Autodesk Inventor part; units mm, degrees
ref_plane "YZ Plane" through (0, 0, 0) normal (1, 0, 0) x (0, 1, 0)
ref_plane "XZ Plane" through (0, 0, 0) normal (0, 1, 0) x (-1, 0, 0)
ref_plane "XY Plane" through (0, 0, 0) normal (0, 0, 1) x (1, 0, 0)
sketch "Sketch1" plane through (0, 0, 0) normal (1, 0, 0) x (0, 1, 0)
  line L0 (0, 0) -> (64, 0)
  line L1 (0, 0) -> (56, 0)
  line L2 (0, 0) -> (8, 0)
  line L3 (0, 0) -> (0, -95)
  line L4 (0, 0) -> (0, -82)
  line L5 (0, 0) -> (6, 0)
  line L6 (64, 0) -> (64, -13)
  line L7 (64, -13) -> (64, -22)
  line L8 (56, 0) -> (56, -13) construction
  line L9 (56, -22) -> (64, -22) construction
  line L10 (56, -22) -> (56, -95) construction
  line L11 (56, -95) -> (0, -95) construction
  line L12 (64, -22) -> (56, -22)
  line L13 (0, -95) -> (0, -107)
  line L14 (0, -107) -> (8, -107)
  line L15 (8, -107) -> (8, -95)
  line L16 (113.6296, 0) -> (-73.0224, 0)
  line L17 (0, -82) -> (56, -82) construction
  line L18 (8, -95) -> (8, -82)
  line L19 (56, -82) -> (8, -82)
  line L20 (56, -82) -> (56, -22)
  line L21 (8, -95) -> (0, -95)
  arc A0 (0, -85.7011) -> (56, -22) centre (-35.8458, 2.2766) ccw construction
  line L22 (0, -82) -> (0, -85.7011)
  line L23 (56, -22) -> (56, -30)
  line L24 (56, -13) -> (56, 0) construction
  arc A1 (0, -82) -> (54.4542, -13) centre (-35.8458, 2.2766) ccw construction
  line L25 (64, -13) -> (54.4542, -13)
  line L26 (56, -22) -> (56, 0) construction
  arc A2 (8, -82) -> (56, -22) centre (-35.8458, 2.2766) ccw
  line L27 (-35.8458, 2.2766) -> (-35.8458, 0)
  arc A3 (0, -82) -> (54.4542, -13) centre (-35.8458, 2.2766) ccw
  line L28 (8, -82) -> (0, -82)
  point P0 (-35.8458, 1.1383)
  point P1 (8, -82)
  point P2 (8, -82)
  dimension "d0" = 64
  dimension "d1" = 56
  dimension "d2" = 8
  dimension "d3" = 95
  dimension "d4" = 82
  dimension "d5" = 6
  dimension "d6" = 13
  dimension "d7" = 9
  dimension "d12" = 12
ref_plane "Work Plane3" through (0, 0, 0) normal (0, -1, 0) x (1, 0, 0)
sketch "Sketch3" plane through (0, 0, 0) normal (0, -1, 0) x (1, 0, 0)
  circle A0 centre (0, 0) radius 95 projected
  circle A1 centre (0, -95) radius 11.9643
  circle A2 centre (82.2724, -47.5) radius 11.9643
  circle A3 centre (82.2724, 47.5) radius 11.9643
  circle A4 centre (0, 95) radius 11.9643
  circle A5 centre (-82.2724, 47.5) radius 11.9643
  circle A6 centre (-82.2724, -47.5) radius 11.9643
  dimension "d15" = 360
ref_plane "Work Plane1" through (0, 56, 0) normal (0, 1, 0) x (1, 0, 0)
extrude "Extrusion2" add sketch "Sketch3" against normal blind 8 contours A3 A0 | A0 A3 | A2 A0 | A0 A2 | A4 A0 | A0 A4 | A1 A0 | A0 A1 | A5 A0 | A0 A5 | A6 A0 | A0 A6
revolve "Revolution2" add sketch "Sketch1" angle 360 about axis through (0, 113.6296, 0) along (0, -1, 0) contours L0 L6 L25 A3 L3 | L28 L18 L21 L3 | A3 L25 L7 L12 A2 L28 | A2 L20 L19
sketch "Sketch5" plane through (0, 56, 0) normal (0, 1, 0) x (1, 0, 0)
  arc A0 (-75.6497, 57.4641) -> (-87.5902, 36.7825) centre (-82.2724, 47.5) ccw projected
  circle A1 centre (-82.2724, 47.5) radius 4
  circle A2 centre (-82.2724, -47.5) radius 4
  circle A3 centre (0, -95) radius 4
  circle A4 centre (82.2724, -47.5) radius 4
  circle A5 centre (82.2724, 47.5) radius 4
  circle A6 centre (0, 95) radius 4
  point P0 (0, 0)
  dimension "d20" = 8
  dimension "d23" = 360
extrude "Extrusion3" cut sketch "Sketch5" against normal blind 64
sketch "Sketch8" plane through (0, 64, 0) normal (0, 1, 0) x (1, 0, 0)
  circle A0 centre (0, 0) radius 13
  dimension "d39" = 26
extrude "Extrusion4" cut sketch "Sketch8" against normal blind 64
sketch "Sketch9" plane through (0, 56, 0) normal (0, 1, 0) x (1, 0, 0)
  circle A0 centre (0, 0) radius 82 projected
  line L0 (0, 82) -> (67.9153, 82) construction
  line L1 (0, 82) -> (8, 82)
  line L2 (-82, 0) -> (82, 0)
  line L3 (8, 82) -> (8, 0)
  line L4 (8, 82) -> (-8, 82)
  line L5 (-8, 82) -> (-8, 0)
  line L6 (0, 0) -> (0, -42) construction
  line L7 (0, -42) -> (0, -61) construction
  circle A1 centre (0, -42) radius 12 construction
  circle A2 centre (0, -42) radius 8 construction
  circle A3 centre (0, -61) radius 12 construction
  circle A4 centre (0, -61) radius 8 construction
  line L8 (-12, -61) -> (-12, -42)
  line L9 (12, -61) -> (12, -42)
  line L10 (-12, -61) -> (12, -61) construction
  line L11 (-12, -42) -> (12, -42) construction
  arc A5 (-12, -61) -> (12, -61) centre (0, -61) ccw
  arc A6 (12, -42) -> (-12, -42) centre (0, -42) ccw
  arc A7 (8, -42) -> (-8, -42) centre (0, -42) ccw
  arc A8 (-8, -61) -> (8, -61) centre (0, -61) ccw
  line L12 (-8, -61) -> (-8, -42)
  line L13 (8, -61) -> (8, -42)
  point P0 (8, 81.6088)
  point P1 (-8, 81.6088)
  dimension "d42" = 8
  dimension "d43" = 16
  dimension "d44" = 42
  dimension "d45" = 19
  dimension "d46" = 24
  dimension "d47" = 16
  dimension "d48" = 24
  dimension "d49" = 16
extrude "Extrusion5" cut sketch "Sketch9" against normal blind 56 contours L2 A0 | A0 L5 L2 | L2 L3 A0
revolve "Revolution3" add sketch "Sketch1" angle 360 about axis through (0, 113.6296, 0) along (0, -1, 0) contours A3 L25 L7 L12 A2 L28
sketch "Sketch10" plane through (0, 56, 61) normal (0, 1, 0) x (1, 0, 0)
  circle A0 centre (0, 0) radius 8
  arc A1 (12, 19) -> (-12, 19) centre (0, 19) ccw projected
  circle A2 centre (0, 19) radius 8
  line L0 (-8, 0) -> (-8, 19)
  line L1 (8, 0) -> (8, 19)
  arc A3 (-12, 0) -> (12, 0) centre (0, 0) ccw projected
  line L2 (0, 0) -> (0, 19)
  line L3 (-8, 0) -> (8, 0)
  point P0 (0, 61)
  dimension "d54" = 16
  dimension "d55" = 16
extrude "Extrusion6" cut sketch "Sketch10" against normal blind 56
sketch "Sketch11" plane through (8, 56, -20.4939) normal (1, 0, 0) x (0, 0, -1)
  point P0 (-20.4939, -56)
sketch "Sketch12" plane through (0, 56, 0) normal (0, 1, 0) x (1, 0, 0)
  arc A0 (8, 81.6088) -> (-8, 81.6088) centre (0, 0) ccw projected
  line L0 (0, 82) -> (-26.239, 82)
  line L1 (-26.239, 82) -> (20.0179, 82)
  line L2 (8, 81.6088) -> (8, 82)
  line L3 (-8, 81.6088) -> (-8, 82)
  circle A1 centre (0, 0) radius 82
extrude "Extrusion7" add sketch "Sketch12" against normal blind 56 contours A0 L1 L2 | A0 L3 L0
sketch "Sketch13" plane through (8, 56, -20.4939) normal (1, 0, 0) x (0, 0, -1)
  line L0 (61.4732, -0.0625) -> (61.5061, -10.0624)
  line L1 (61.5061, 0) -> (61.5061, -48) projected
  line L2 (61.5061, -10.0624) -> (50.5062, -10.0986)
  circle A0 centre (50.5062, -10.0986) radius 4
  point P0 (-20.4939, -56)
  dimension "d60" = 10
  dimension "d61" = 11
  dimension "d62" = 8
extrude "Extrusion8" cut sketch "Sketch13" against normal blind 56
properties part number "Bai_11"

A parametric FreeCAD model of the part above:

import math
import FreeCAD as App
import Part
import Sketcher

doc = App.newDocument("Part")
body = doc.addObject("PartDesign::Body", "Body")
body.AllowCompound = True

# Sketch on XZ plane
sketch1 = body.newObject("Sketcher::SketchObject", "Sketch")
sketch1.AttachmentSupport = (doc.getObject("XZ_Plane"), [""])
sketch1.MapMode = "FlatFace"
sketch1.addGeometry([
    Part.Circle(App.Vector(82.2724, 47.5, 0), App.Vector(0, 0, 1), 11.9643),  # 0
    Part.Circle(App.Vector(82.2724, -47.5, 0), App.Vector(0, 0, 1), 11.9643),  # 1
    Part.Circle(App.Vector(0, 95, 0), App.Vector(0, 0, 1), 11.9643),  # 2
    Part.Circle(App.Vector(0, -95, 0), App.Vector(0, 0, 1), 11.9643),  # 3
    Part.Circle(App.Vector(-82.2724, 47.5, 0), App.Vector(0, 0, 1), 11.9643),  # 4
    Part.Circle(App.Vector(-82.2724, -47.5, 0), App.Vector(0, 0, 1), 11.9643),  # 5
], False)
sketch1.addConstraint([
    Sketcher.Constraint("Equal", 0, 1),
    Sketcher.Constraint("Equal", 1, 2),
    Sketcher.Constraint("Equal", 2, 3),
    Sketcher.Constraint("Equal", 3, 4),
    Sketcher.Constraint("Equal", 4, 5),
    Sketcher.Constraint("Symmetric", 2, 3, 3, 3, -1, 1),
    Sketcher.Constraint("Symmetric", 1, 3, 4, 3, -1, 1),
    Sketcher.Constraint("Symmetric", 0, 3, 5, 3, -1, 1),
    Sketcher.Constraint("Symmetric", 0, 3, 4, 3, -2),
    Sketcher.Constraint("PointOnObject", 2, 3, -2),
    Sketcher.Constraint("DistanceY", -1, 1, 2, 3, 95.0),
    Sketcher.Constraint("DistanceY", 1, 3, 0, 3, 95.0),
    Sketcher.Constraint("Diameter", 0, 23.9286),
    Sketcher.Constraint("DistanceX", -1, 1, 0, 3, 82.2724),
])
pad1 = body.newObject("PartDesign::Pad", "Pad")
pad1.Profile = sketch1
pad1.Length = 8
pad1.Reversed = True

# Sketch on YZ plane
sketch2 = body.newObject("Sketcher::SketchObject", "Sketch001")
sketch2.AttachmentSupport = (doc.getObject("YZ_Plane"), [""])
sketch2.MapMode = "FlatFace"
sketch2.addGeometry([
    Part.LineSegment(App.Vector(0, 0, 0), App.Vector(0, -95, 0)),  # 0
    Part.LineSegment(App.Vector(0, -95, 0), App.Vector(8, -95, 0)),  # 1
    Part.LineSegment(App.Vector(8, -95, 0), App.Vector(8, -82, 0)),  # 2
    Part.LineSegment(App.Vector(8, -82, 0), App.Vector(56, -82, 0)),  # 3
    Part.LineSegment(App.Vector(56, -82, 0), App.Vector(56, -22, 0)),  # 4
    Part.LineSegment(App.Vector(56, -22, 0), App.Vector(64, -22, 0)),  # 5
    Part.LineSegment(App.Vector(64, -22, 0), App.Vector(64, 0, 0)),  # 6
    Part.LineSegment(App.Vector(64, 0, 0), App.Vector(0, 0, 0)),  # 7
], False)
sketch2.addConstraint([
    Sketcher.Constraint("Coincident", 0, 2, 1, 1),
    Sketcher.Constraint("Coincident", 1, 2, 2, 1),
    Sketcher.Constraint("Coincident", 2, 2, 3, 1),
    Sketcher.Constraint("Coincident", 3, 2, 4, 1),
    Sketcher.Constraint("Coincident", 4, 2, 5, 1),
    Sketcher.Constraint("Coincident", 5, 2, 6, 1),
    Sketcher.Constraint("Coincident", 6, 2, 7, 1),
    Sketcher.Constraint("Coincident", 7, 2, 0, 1),
    Sketcher.Constraint("Vertical", 0),
    Sketcher.Constraint("Horizontal", 1),
    Sketcher.Constraint("Vertical", 2),
    Sketcher.Constraint("Horizontal", 3),
    Sketcher.Constraint("Vertical", 4),
    Sketcher.Constraint("Horizontal", 5),
    Sketcher.Constraint("Vertical", 6),
    Sketcher.Constraint("Horizontal", 7),
    Sketcher.Constraint("Coincident", 7, 2, -1, 1),
    Sketcher.Constraint("Equal", 1, 5),
    Sketcher.Constraint("DistanceX", 1, 1, 1, 2, 8.0),
    Sketcher.Constraint("DistanceX", 7, 2, 7, 1, 64.0),
    Sketcher.Constraint("DistanceY", 0, 2, 0, 1, 95.0),
    Sketcher.Constraint("DistanceY", 2, 1, 2, 2, 13.0),
    Sketcher.Constraint("DistanceY", 4, 1, 4, 2, 60.0),
])
revolution = body.newObject("PartDesign::Revolution", "Revolution")
revolution.Profile = sketch2
revolution.ReferenceAxis = (sketch2, ["H_Axis"])
revolution.Angle = 360

# Sketch on XZ plane
sketch3 = body.newObject("Sketcher::SketchObject", "Sketch002")
sketch3.AttachmentSupport = (doc.getObject("XZ_Plane"), [""])
sketch3.MapMode = "FlatFace"
sketch3.AttachmentOffset = App.Placement(App.Vector(0, 0, -56), App.Rotation())
sketch3.addGeometry([
    Part.Circle(App.Vector(-82.2724, -47.5, 0), App.Vector(0, 0, 1), 4),  # 0
    Part.Circle(App.Vector(-82.2724, 47.5, 0), App.Vector(0, 0, 1), 4),  # 1
    Part.Circle(App.Vector(0, 95, 0), App.Vector(0, 0, 1), 4),  # 2
    Part.Circle(App.Vector(82.2724, 47.5, 0), App.Vector(0, 0, 1), 4),  # 3
    Part.Circle(App.Vector(82.2724, -47.5, 0), App.Vector(0, 0, 1), 4),  # 4
    Part.Circle(App.Vector(0, -95, 0), App.Vector(0, 0, 1), 4),  # 5
], False)
sketch3.addConstraint([
    Sketcher.Constraint("Equal", 0, 1),
    Sketcher.Constraint("Equal", 1, 2),
    Sketcher.Constraint("Equal", 2, 3),
    Sketcher.Constraint("Equal", 3, 4),
    Sketcher.Constraint("Equal", 4, 5),
    Sketcher.Constraint("Symmetric", 0, 3, 3, 3, -1, 1),
    Sketcher.Constraint("Symmetric", 1, 3, 4, 3, -1, 1),
    Sketcher.Constraint("Symmetric", 2, 3, 5, 3, -1, 1),
    Sketcher.Constraint("Symmetric", 1, 3, 3, 3, -2),
    Sketcher.Constraint("PointOnObject", 2, 3, -2),
    Sketcher.Constraint("Diameter", 0, 8.0),
    Sketcher.Constraint("DistanceY", -1, 1, 2, 3, 95.0),
    Sketcher.Constraint("DistanceY", 0, 3, 1, 3, 95.0),
    Sketcher.Constraint("DistanceX", 0, 3, -1, 1, 82.2724),
])
pocket1 = body.newObject("PartDesign::Pocket", "Pocket")
pocket1.Profile = sketch3
pocket1.Length = 64
pocket1.Reversed = True

# Sketch on XZ plane
sketch4 = body.newObject("Sketcher::SketchObject", "Sketch003")
sketch4.AttachmentSupport = (doc.getObject("XZ_Plane"), [""])
sketch4.MapMode = "FlatFace"
sketch4.AttachmentOffset = App.Placement(App.Vector(0, 0, -64), App.Rotation())
sketch4.addGeometry(Part.Circle(App.Vector(0, 0, 0), App.Vector(0, 0, 1), 13), False)
sketch4.addConstraint([
    Sketcher.Constraint("Coincident", 0, 3, -1, 1),
    Sketcher.Constraint("Diameter", 0, 26.0),
])
pocket2 = body.newObject("PartDesign::Pocket", "Pocket001")
pocket2.Profile = sketch4
pocket2.Length = 64
pocket2.Reversed = True

# Sketch on XZ plane
sketch5 = body.newObject("Sketcher::SketchObject", "Sketch004")
sketch5.AttachmentSupport = (doc.getObject("XZ_Plane"), [""])
sketch5.MapMode = "FlatFace"
sketch5.AttachmentOffset = App.Placement(App.Vector(0, 0, -56), App.Rotation())
sketch5.addGeometry([
    Part.LineSegment(App.Vector(8, 0, 0), App.Vector(-8, 0, 0)),  # 0
    Part.LineSegment(App.Vector(-8, 0, 0), App.Vector(-8, -81.608823, 0)),  # 1
    Part.ArcOfCircle(Part.Circle(App.Vector(0, 0, 0), App.Vector(0, 0, 1), 82), math.radians(-84.401262), math.radians(264.401262)),  # 2
    Part.LineSegment(App.Vector(8, -81.608823, 0), App.Vector(8, 0, 0)),  # 3
    Part.ArcOfCircle(Part.Circle(App.Vector(0, 61, 0), App.Vector(0, 0, 1), 12), math.radians(0), math.radians(180)),  # 4
    Part.LineSegment(App.Vector(-12, 61, 0), App.Vector(-12, 42, 0)),  # 5
    Part.ArcOfCircle(Part.Circle(App.Vector(0, 42, 0), App.Vector(0, 0, 1), 12), math.radians(180), math.radians(360)),  # 6
    Part.LineSegment(App.Vector(12, 42, 0), App.Vector(12, 61, 0)),  # 7
], False)
sketch5.addConstraint([
    Sketcher.Constraint("Coincident", 0, 2, 1, 1),
    Sketcher.Constraint("Coincident", 1, 2, 2, 2),
    Sketcher.Constraint("Coincident", 2, 1, 3, 1),
    Sketcher.Constraint("Coincident", 3, 2, 0, 1),
    Sketcher.Constraint("Tangent", 4, 2, 5, 1),
    Sketcher.Constraint("Tangent", 5, 2, 6, 1),
    Sketcher.Constraint("Tangent", 6, 2, 7, 1),
    Sketcher.Constraint("Tangent", 7, 2, 4, 1),
    Sketcher.Constraint("Horizontal", 0),
    Sketcher.Constraint("Vertical", 1),
    Sketcher.Constraint("Vertical", 3),
    Sketcher.Constraint("Vertical", 5),
    Sketcher.Constraint("Vertical", 7),
    Sketcher.Constraint("Coincident", 2, 3, -1, 1),
    Sketcher.Constraint("Symmetric", 0, 2, 3, 2, -1, 1),
    Sketcher.Constraint("PointOnObject", 4, 3, -2),
    Sketcher.Constraint("Radius", 4, 12.0),
    Sketcher.Constraint("DistanceX", 0, 2, 0, 1, 16.0),
    Sketcher.Constraint("DistanceY", 5, 2, 5, 1, 19.0),
    Sketcher.Constraint("DistanceY", -1, 1, 6, 3, 42.0),
    Sketcher.Constraint("Radius", 2, 82.0),
])
pocket3 = body.newObject("PartDesign::Pocket", "Pocket002")
pocket3.Profile = sketch5
pocket3.Length = 56
pocket3.Reversed = True

# Sketch on YZ plane
sketch6 = body.newObject("Sketcher::SketchObject", "Sketch005")
sketch6.AttachmentSupport = (doc.getObject("YZ_Plane"), [""])
sketch6.MapMode = "FlatFace"
sketch6.addGeometry([
    Part.ArcOfCircle(Part.Circle(App.Vector(-35.8458, 2.2766, 0), App.Vector(0, 0, 1), 91.583114), math.radians(-66.958245), math.radians(-9.602158)),  # 0
    Part.LineSegment(App.Vector(0, -82, 0), App.Vector(8, -82, 0)),  # 1
    Part.ArcOfCircle(Part.Circle(App.Vector(-35.8458, 2.2766, 0), App.Vector(0, 0, 1), 94.999997), math.radians(-62.513813), math.radians(-14.805769)),  # 2
    Part.LineSegment(App.Vector(56, -22, 0), App.Vector(64, -22, 0)),  # 3
    Part.LineSegment(App.Vector(64, -22, 0), App.Vector(64, -13, 0)),  # 4
    Part.LineSegment(App.Vector(64, -13, 0), App.Vector(54.4542, -13, 0)),  # 5
], False)
sketch6.addConstraint([
    Sketcher.Constraint("Coincident", 0, 1, 1, 1),
    Sketcher.Constraint("Coincident", 1, 2, 2, 1),
    Sketcher.Constraint("Coincident", 2, 2, 3, 1),
    Sketcher.Constraint("Coincident", 3, 2, 4, 1),
    Sketcher.Constraint("Coincident", 4, 2, 5, 1),
    Sketcher.Constraint("Coincident", 5, 2, 0, 2),
    Sketcher.Constraint("Horizontal", 1),
    Sketcher.Constraint("Horizontal", 3),
    Sketcher.Constraint("Vertical", 4),
    Sketcher.Constraint("Horizontal", 5),
    Sketcher.Constraint("Coincident", 2, 3, 0, 3),
    Sketcher.Constraint("PointOnObject", 0, 1, -2),
    Sketcher.Constraint("Equal", 1, 3),
    Sketcher.Constraint("Radius", 2, 95.0),
    Sketcher.Constraint("DistanceX", 1, 1, 1, 2, 8.0),
    Sketcher.Constraint("DistanceY", 4, 1, 4, 2, 9.0),
    Sketcher.Constraint("DistanceY", 0, 1, -1, 1, 82.0),
    Sketcher.Constraint("DistanceX", -1, 1, 2, 2, 56.0),
    Sketcher.Constraint("DistanceY", 4, 2, -1, 1, 13.0),
])
revolution2 = body.newObject("PartDesign::Revolution", "Revolution001")
revolution2.Profile = sketch6
revolution2.ReferenceAxis = (sketch6, ["H_Axis"])
revolution2.Angle = 360

# Sketch on XZ plane
sketch7 = body.newObject("Sketcher::SketchObject", "Sketch006")
sketch7.AttachmentSupport = (doc.getObject("XZ_Plane"), [""])
sketch7.MapMode = "FlatFace"
sketch7.AttachmentOffset = App.Placement(App.Vector(0, 0, -56), App.Rotation())
sketch7.addGeometry([
    Part.ArcOfCircle(Part.Circle(App.Vector(0, 61, 0), App.Vector(0, 0, 1), 8), math.radians(0), math.radians(180)),
    Part.LineSegment(App.Vector(8, 61, 0), App.Vector(8, 42, 0)),
    Part.ArcOfCircle(Part.Circle(App.Vector(0, 42, 0), App.Vector(0, 0, 1), 8), math.radians(180), math.radians(360)),
    Part.LineSegment(App.Vector(-8, 42, 0), App.Vector(-8, 61, 0)),
], False)
sketch7.addConstraint([
    Sketcher.Constraint("Tangent", 0, 1, 1, 1),
    Sketcher.Constraint("Tangent", 1, 2, 2, 2),
    Sketcher.Constraint("Tangent", 2, 1, 3, 1),
    Sketcher.Constraint("Tangent", 3, 2, 0, 2),
    Sketcher.Constraint("Vertical", 1),
    Sketcher.Constraint("Vertical", 3),
    Sketcher.Constraint("PointOnObject", 0, 3, -2),
    Sketcher.Constraint("Radius", 0, 8.0),
    Sketcher.Constraint("DistanceY", 1, 2, 1, 1, 19.0),
    Sketcher.Constraint("DistanceY", -1, 1, 0, 3, 61.0),
])
pocket4 = body.newObject("PartDesign::Pocket", "Pocket003")
pocket4.Profile = sketch7
pocket4.Length = 56
pocket4.Reversed = True

# Sketch on XZ plane
sketch8 = body.newObject("Sketcher::SketchObject", "Sketch007")
sketch8.AttachmentSupport = (doc.getObject("XZ_Plane"), [""])
sketch8.MapMode = "FlatFace"
sketch8.AttachmentOffset = App.Placement(App.Vector(0, 0, -56), App.Rotation())
sketch8.addGeometry([
    Part.ArcOfCircle(Part.Circle(App.Vector(0, 0, 0), App.Vector(0, 0, 1), 81.999977), math.radians(-90), math.radians(-84.401261)),  # 0
    Part.LineSegment(App.Vector(8, -81.6088, 0), App.Vector(8, -82, 0)),  # 1
    Part.LineSegment(App.Vector(8, -82, 0), App.Vector(0, -82, 0)),  # 2
    Part.ArcOfCircle(Part.Circle(App.Vector(0, 0, 0), App.Vector(0, 0, 1), 81.999977), math.radians(-95.598739), math.radians(-90)),  # 3
    Part.LineSegment(App.Vector(0, -82, 0), App.Vector(-8, -82, 0)),  # 4
    Part.LineSegment(App.Vector(-8, -82, 0), App.Vector(-8, -81.6088, 0)),  # 5
], False)
sketch8.addConstraint([
    Sketcher.Constraint("Coincident", 0, 2, 1, 1),
    Sketcher.Constraint("Coincident", 1, 2, 2, 1),
    Sketcher.Constraint("Tangent", 2, 2, 0, 1),
    Sketcher.Constraint("Tangent", 3, 2, 4, 1),
    Sketcher.Constraint("Coincident", 4, 2, 5, 1),
    Sketcher.Constraint("Coincident", 5, 2, 3, 1),
    Sketcher.Constraint("Vertical", 1),
    Sketcher.Constraint("Horizontal", 2),
    Sketcher.Constraint("Horizontal", 4),
    Sketcher.Constraint("Vertical", 5),
    Sketcher.Constraint("Coincident", 0, 3, -1, 1),
    Sketcher.Constraint("Coincident", 3, 3, -1, 1),
    Sketcher.Constraint("Equal", 0, 3),
    Sketcher.Constraint("Horizontal", 0, 2, 5, 2),
    Sketcher.Constraint("Radius", 0, 82.0),
    Sketcher.Constraint("DistanceX", 2, 2, 2, 1, 8.0),
])
pad2 = body.newObject("PartDesign::Pad", "Pad001")
pad2.Profile = sketch8
pad2.Length = 56

# Sketch on YZ plane
sketch9 = body.newObject("Sketcher::SketchObject", "Sketch008")
sketch9.AttachmentSupport = (doc.getObject("YZ_Plane"), [""])
sketch9.MapMode = "FlatFace"
sketch9.AttachmentOffset = App.Placement(App.Vector(0, 0, 8), App.Rotation())
sketch9.addGeometry(Part.Circle(App.Vector(45.9014, -71.0001, 0), App.Vector(0, 0, 1), 4), False)
sketch9.addConstraint([
    Sketcher.Constraint("Diameter", 0, 8.0),
    Sketcher.Constraint("DistanceY", 0, 3, -1, 1, 71.0),
    Sketcher.Constraint("DistanceX", -1, 1, 0, 3, 45.9014),
])
pocket5 = body.newObject("PartDesign::Pocket", "Pocket004")
pocket5.Profile = sketch9
pocket5.Length = 56

doc.recompute()
